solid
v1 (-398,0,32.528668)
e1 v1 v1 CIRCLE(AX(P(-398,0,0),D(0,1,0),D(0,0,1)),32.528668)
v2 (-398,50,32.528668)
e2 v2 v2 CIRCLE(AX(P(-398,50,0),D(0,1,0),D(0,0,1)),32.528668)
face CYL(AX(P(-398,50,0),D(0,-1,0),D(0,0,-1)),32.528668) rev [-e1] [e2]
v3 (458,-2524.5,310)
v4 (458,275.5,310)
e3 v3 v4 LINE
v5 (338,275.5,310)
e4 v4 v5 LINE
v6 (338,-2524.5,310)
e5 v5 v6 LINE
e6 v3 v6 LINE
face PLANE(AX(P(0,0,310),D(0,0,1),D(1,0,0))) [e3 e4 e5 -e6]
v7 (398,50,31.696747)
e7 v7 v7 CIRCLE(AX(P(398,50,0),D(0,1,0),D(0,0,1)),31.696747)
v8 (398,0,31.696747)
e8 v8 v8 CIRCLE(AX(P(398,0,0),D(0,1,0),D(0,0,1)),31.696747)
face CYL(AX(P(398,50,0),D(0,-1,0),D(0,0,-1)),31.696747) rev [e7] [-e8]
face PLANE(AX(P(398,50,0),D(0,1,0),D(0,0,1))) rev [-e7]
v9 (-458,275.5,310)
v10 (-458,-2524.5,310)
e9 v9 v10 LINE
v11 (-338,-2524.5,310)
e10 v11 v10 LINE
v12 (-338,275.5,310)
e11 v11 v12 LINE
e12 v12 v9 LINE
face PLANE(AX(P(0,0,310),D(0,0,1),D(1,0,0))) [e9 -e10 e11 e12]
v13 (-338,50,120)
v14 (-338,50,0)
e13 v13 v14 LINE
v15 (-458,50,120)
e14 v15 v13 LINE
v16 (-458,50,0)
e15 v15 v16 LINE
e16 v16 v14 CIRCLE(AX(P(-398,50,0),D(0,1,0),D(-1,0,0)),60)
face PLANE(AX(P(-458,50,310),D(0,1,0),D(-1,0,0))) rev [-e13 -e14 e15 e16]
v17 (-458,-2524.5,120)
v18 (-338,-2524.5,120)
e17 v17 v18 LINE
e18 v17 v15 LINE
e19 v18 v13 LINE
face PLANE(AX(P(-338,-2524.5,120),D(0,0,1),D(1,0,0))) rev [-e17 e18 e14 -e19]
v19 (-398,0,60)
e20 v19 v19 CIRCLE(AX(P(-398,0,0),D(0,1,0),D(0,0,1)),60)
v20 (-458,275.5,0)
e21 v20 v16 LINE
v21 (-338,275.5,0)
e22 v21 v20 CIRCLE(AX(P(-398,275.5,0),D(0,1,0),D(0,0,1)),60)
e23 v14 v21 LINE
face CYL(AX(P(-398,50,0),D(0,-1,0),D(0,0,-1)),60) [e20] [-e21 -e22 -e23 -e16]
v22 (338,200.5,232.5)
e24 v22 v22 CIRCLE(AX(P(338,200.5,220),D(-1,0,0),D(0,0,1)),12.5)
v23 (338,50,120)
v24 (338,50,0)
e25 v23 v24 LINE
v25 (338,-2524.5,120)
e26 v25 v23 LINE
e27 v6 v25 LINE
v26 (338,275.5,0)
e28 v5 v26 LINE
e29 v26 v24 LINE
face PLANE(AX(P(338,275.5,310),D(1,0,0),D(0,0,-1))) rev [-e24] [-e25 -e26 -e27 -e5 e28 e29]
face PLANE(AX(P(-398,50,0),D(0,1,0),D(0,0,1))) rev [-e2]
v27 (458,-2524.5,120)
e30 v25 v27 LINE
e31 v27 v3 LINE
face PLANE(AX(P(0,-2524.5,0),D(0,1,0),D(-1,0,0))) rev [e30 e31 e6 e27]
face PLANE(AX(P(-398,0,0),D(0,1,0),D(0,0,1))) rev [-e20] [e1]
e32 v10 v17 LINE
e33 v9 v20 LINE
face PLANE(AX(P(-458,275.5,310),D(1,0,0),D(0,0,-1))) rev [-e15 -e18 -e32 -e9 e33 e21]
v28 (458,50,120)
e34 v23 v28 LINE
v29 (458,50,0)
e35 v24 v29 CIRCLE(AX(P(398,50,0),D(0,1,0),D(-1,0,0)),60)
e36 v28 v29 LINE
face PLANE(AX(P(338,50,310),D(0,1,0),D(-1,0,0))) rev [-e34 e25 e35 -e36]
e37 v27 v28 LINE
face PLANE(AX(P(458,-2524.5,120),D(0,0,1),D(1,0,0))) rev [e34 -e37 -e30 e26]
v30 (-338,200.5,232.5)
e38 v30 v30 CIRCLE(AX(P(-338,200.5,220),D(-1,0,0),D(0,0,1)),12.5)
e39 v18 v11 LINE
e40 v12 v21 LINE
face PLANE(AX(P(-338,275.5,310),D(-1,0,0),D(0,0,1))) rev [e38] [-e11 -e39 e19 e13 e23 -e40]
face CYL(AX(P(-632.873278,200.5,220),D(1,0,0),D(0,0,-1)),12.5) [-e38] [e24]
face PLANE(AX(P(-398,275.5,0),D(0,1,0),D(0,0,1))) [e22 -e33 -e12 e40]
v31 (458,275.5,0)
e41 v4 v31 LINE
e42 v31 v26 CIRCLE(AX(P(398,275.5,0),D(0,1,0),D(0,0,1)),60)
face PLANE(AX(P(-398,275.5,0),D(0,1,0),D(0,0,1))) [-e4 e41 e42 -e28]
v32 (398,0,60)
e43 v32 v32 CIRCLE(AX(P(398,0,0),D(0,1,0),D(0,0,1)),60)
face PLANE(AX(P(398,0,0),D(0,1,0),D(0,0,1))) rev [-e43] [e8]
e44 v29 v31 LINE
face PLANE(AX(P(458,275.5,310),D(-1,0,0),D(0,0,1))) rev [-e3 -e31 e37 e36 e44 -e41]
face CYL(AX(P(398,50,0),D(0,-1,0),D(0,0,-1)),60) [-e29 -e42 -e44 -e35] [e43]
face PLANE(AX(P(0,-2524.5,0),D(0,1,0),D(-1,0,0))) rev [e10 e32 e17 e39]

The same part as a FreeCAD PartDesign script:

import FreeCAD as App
import Part
import Sketcher
from FreeCAD import Vector

doc = App.newDocument("Part")
params = doc.addObject("Spreadsheet::Sheet", "Params")
for row, (alias, value) in enumerate([
    ("sketch1_diameter", "120 mm"),
    ("pad1_length", "50 mm"),
    ("sketch2_diameter", "120 mm"),
    ("pad2_length", "50 mm"),
    ("sketch3_diameter", "120 mm"),
    ("pad3_length", "225.5 mm"),
    ("sketch4_width", "120 mm"),
    ("sketch4_height", "225.5 mm"),
    ("pad4_length", "310 mm"),
    ("sketch5_width", "120 mm"),
    ("sketch5_height", "190 mm"),
    ("pad5_length", "2574.5 mm"),
    ("sketch6_height", "190 mm"),
    ("sketch6_width", "225.5 mm"),
    ("pad6_length", "676 mm"),
    ("sketch7_diameter", "25 mm"),
    ("sketch7_height", "190 mm"),
    ("sketch7_width", "225.5 mm"),
    ("pocket1_length", "676 mm"),
], start=1):
    params.set(f"A{row}", alias)
    params.set(f"B{row}", "=" + value)
    params.setAlias(f"B{row}", alias)

body = doc.addObject("PartDesign::Body", "Body")

sketch1 = doc.addObject("Sketcher::SketchObject", "Sketch")
body.addObject(sketch1)
sketch1.AttachmentSupport = (doc.XZ_Plane, [""])
sketch1.MapMode = "FlatFace"
sketch1.addGeometry([
    Part.Circle(Vector(-398, 0, 0), Vector(0, 0, 1), 60),
    Part.Circle(Vector(-398, 0, 0), Vector(0, 0, 1), 33),
], False)
sketch1.addConstraint([
    Sketcher.Constraint("Coincident", 1, 3, 0, 3),
    Sketcher.Constraint("PointOnObject", 0, 3, -1),
    Sketcher.Constraint("Diameter", 0, 120.0),
    Sketcher.Constraint("DistanceX", 0, 3, -1, 1, 398.0),
    Sketcher.Constraint("Diameter", 1, 65.057335),
])
sketch1.setExpression("Constraints[2]", "Params.sketch1_diameter")
pad1 = doc.addObject("PartDesign::Pad", "Pad")
body.addObject(pad1)
pad1.Profile = sketch1
pad1.setExpression("Length", "Params.pad1_length")
pad1.Reversed = True
body2 = doc.addObject("PartDesign::Body", "Body001")

sketch2 = doc.addObject("Sketcher::SketchObject", "Sketch001")
body2.addObject(sketch2)
sketch2.AttachmentSupport = (doc.getObject("XZ_Plane001"), [""])
sketch2.MapMode = "FlatFace"
sketch2.addGeometry([
    Part.Circle(Vector(398, 0, 0), Vector(0, 0, 1), 60),
    Part.Circle(Vector(398, 0, 0), Vector(0, 0, 1), 32),
], False)
sketch2.addConstraint([
    Sketcher.Constraint("Coincident", 1, 3, 0, 3),
    Sketcher.Constraint("PointOnObject", 0, 3, -1),
    Sketcher.Constraint("Diameter", 0, 120.0),
    Sketcher.Constraint("DistanceX", -1, 1, 0, 3, 398.0),
    Sketcher.Constraint("Diameter", 1, 63.393493),
])
sketch2.setExpression("Constraints[2]", "Params.sketch2_diameter")
pad2 = doc.addObject("PartDesign::Pad", "Pad001")
body2.addObject(pad2)
pad2.Profile = sketch2
pad2.setExpression("Length", "Params.pad2_length")
pad2.Reversed = True
body.AllowCompound = True
doc.recompute()

boolean = doc.addObject("PartDesign::Boolean", "Boolean")
body.addObject(boolean)
boolean.Type = "Fuse"
boolean.addObjects([body2])

sketch3 = doc.addObject("Sketcher::SketchObject", "Sketch002")
body.addObject(sketch3)
sketch3.AttachmentSupport = (doc.XZ_Plane, [""])
sketch3.MapMode = "FlatFace"
sketch3.AttachmentOffset = App.Placement(Vector(0, 0, -50), App.Rotation())
sketch3.addGeometry([
    Part.Circle(Vector(398, 0, 0), Vector(0, 0, 1), 60),
    Part.Circle(Vector(-398, 0, 0), Vector(0, 0, 1), 60),
], False)
sketch3.addConstraint([
    Sketcher.Constraint("Equal", 0, 1),
    Sketcher.Constraint("Symmetric", 0, 3, 1, 3, -1, 1),
    Sketcher.Constraint("PointOnObject", 0, 3, -1),
    Sketcher.Constraint("Diameter", 0, 120.0),
    Sketcher.Constraint("DistanceX", -1, 1, 0, 3, 398.0),
])
sketch3.setExpression("Constraints[3]", "Params.sketch3_diameter")
pad3 = doc.addObject("PartDesign::Pad", "Pad002")
body.addObject(pad3)
pad3.Profile = sketch3
pad3.setExpression("Length", "Params.pad3_length")
pad3.Reversed = True

sketch4 = doc.addObject("Sketcher::SketchObject", "Sketch003")
body.addObject(sketch4)
sketch4.AttachmentSupport = (doc.XY_Plane, [""])
sketch4.MapMode = "FlatFace"
sketch4.addGeometry([
    Part.LineSegment(Vector(-458, 276, 0), Vector(-458, 50, 0)),
    Part.LineSegment(Vector(-458, 50, 0), Vector(-338, 50, 0)),
    Part.LineSegment(Vector(-338, 50, 0), Vector(-338, 276, 0)),
    Part.LineSegment(Vector(-338, 276, 0), Vector(-458, 276, 0)),
    Part.LineSegment(Vector(338, 276, 0), Vector(338, 50, 0)),
    Part.LineSegment(Vector(338, 50, 0), Vector(458, 50, 0)),
    Part.LineSegment(Vector(458, 50, 0), Vector(458, 276, 0)),
    Part.LineSegment(Vector(458, 276, 0), Vector(338, 276, 0)),
], False)
sketch4.addConstraint([
    Sketcher.Constraint("Coincident", 0, 2, 1, 1),
    Sketcher.Constraint("Coincident", 1, 2, 2, 1),
    Sketcher.Constraint("Coincident", 2, 2, 3, 1),
    Sketcher.Constraint("Coincident", 3, 2, 0, 1),
    Sketcher.Constraint("Coincident", 4, 2, 5, 1),
    Sketcher.Constraint("Coincident", 5, 2, 6, 1),
    Sketcher.Constraint("Coincident", 6, 2, 7, 1),
    Sketcher.Constraint("Coincident", 7, 2, 4, 1),
    Sketcher.Constraint("Vertical", 0),
    Sketcher.Constraint("Horizontal", 1),
    Sketcher.Constraint("Vertical", 2),
    Sketcher.Constraint("Horizontal", 3),
    Sketcher.Constraint("Vertical", 4),
    Sketcher.Constraint("Horizontal", 5),
    Sketcher.Constraint("Vertical", 6),
    Sketcher.Constraint("Horizontal", 7),
    Sketcher.Constraint("Symmetric", 1, 2, 4, 2, -2),
    Sketcher.Constraint("Symmetric", 3, 2, 6, 2, -2),
    Sketcher.Constraint("DistanceX", 1, 1, 1, 2, 120.0),
    Sketcher.Constraint("DistanceY", 0, 2, 0, 1, 225.5),
    Sketcher.Constraint("DistanceX", 0, 2, -1, 1, 458.0),
    Sketcher.Constraint("DistanceY", -1, 1, 0, 2, 50.0),
])
sketch4.setExpression("Constraints[18]", "Params.sketch4_width")
sketch4.setExpression("Constraints[19]", "Params.sketch4_height")
pad4 = doc.addObject("PartDesign::Pad", "Pad003")
body.addObject(pad4)
pad4.Profile = sketch4
pad4.setExpression("Length", "Params.pad4_length")

sketch5 = doc.addObject("Sketcher::SketchObject", "Sketch004")
body.addObject(sketch5)
sketch5.AttachmentSupport = (doc.XZ_Plane, [""])
sketch5.MapMode = "FlatFace"
sketch5.AttachmentOffset = App.Placement(Vector(0, 0, -50), App.Rotation())
sketch5.addGeometry([
    Part.LineSegment(Vector(338, 310, 0), Vector(338, 120, 0)),
    Part.LineSegment(Vector(338, 120, 0), Vector(458, 120, 0)),
    Part.LineSegment(Vector(458, 120, 0), Vector(458, 310, 0)),
    Part.LineSegment(Vector(458, 310, 0), Vector(338, 310, 0)),
    Part.LineSegment(Vector(-458, 310, 0), Vector(-458, 120, 0)),
    Part.LineSegment(Vector(-458, 120, 0), Vector(-338, 120, 0)),
    Part.LineSegment(Vector(-338, 120, 0), Vector(-338, 310, 0)),
    Part.LineSegment(Vector(-338, 310, 0), Vector(-458, 310, 0)),
], False)
sketch5.addConstraint([
    Sketcher.Constraint("Coincident", 0, 2, 1, 1),
    Sketcher.Constraint("Coincident", 1, 2, 2, 1),
    Sketcher.Constraint("Coincident", 2, 2, 3, 1),
    Sketcher.Constraint("Coincident", 3, 2, 0, 1),
    Sketcher.Constraint("Coincident", 4, 2, 5, 1),
    Sketcher.Constraint("Coincident", 5, 2, 6, 1),
    Sketcher.Constraint("Coincident", 6, 2, 7, 1),
    Sketcher.Constraint("Coincident", 7, 2, 4, 1),
    Sketcher.Constraint("Vertical", 0),
    Sketcher.Constraint("Horizontal", 1),
    Sketcher.Constraint("Vertical", 2),
    Sketcher.Constraint("Horizontal", 3),
    Sketcher.Constraint("Vertical", 4),
    Sketcher.Constraint("Horizontal", 5),
    Sketcher.Constraint("Vertical", 6),
    Sketcher.Constraint("Horizontal", 7),
    Sketcher.Constraint("Symmetric", 1, 2, 4, 2, -2),
    Sketcher.Constraint("Symmetric", 3, 2, 6, 2, -2),
    Sketcher.Constraint("DistanceX", 1, 1, 1, 2, 120.0),
    Sketcher.Constraint("DistanceY", 0, 2, 0, 1, 190.0),
    Sketcher.Constraint("DistanceX", -1, 1, 0, 2, 338.0),
    Sketcher.Constraint("DistanceY", -1, 1, 0, 2, 120.0),
])
sketch5.setExpression("Constraints[18]", "Params.sketch5_width")
sketch5.setExpression("Constraints[19]", "Params.sketch5_height")
pad5 = doc.addObject("PartDesign::Pad", "Pad004")
body.addObject(pad5)
pad5.Profile = sketch5
pad5.setExpression("Length", "Params.pad5_length")

sketch6 = doc.addObject("Sketcher::SketchObject", "Sketch005")
body.addObject(sketch6)
sketch6.AttachmentSupport = (doc.YZ_Plane, [""])
sketch6.MapMode = "FlatFace"
sketch6.AttachmentOffset = App.Placement(Vector(0, 0, -338), App.Rotation())
sketch6.addGeometry([
    Part.LineSegment(Vector(276, 310, 0), Vector(50, 310, 0)),
    Part.LineSegment(Vector(50, 310, 0), Vector(50, 120, 0)),
    Part.LineSegment(Vector(50, 120, 0), Vector(276, 120, 0)),
    Part.LineSegment(Vector(276, 120, 0), Vector(276, 310, 0)),
], False)
sketch6.addConstraint([
    Sketcher.Constraint("Coincident", 0, 2, 1, 1),
    Sketcher.Constraint("Coincident", 1, 2, 2, 1),
    Sketcher.Constraint("Coincident", 2, 2, 3, 1),
    Sketcher.Constraint("Coincident", 3, 2, 0, 1),
    Sketcher.Constraint("Horizontal", 0),
    Sketcher.Constraint("Vertical", 1),
    Sketcher.Constraint("Horizontal", 2),
    Sketcher.Constraint("Vertical", 3),
    Sketcher.Constraint("DistanceY", 1, 2, 1, 1, 190.0),
    Sketcher.Constraint("DistanceX", 0, 2, 0, 1, 225.5),
    Sketcher.Constraint("DistanceX", -1, 1, 0, 2, 50.0),
    Sketcher.Constraint("DistanceY", -1, 1, 0, 2, 310.0),
])
sketch6.setExpression("Constraints[8]", "Params.sketch6_height")
sketch6.setExpression("Constraints[9]", "Params.sketch6_width")
pad6 = doc.addObject("PartDesign::Pad", "Pad005")
body.addObject(pad6)
pad6.Profile = sketch6
pad6.setExpression("Length", "Params.pad6_length")

sketch7 = doc.addObject("Sketcher::SketchObject", "Sketch006")
body.addObject(sketch7)
sketch7.AttachmentSupport = (doc.YZ_Plane, [""])
sketch7.MapMode = "FlatFace"
sketch7.AttachmentOffset = App.Placement(Vector(0, 0, 338), App.Rotation())
sketch7.addGeometry([
    Part.LineSegment(Vector(276, 120, 0), Vector(50, 120, 0)),
    Part.LineSegment(Vector(50, 120, 0), Vector(50, 310, 0)),
    Part.LineSegment(Vector(50, 310, 0), Vector(276, 310, 0)),
    Part.LineSegment(Vector(276, 310, 0), Vector(276, 120, 0)),
    Part.Circle(Vector(200, 220, 0), Vector(0, 0, 1), 12),
], False)
sketch7.addConstraint([
    Sketcher.Constraint("Coincident", 0, 2, 1, 1),
    Sketcher.Constraint("Coincident", 1, 2, 2, 1),
    Sketcher.Constraint("Coincident", 2, 2, 3, 1),
    Sketcher.Constraint("Coincident", 3, 2, 0, 1),
    Sketcher.Constraint("Horizontal", 0),
    Sketcher.Constraint("Vertical", 1),
    Sketcher.Constraint("Horizontal", 2),
    Sketcher.Constraint("Vertical", 3),
    Sketcher.Constraint("Diameter", 4, 25.0),
    Sketcher.Constraint("DistanceY", 1, 1, 1, 2, 190.0),
    Sketcher.Constraint("DistanceX", 0, 2, 0, 1, 225.5),
    Sketcher.Constraint("DistanceY", -1, 1, 4, 3, 220.0),
    Sketcher.Constraint("DistanceX", -1, 1, 0, 2, 50.0),
    Sketcher.Constraint("DistanceY", -1, 1, 0, 2, 120.0),
    Sketcher.Constraint("DistanceX", 4, 3, 2, 2, 75.0),
])
sketch7.setExpression("Constraints[8]", "Params.sketch7_diameter")
sketch7.setExpression("Constraints[9]", "Params.sketch7_height")
sketch7.setExpression("Constraints[10]", "Params.sketch7_width")
pocket1 = doc.addObject("PartDesign::Pocket", "Pocket")
body.addObject(pocket1)
pocket1.Profile = sketch7
pocket1.setExpression("Length", "Params.pocket1_length")

doc.recompute()
